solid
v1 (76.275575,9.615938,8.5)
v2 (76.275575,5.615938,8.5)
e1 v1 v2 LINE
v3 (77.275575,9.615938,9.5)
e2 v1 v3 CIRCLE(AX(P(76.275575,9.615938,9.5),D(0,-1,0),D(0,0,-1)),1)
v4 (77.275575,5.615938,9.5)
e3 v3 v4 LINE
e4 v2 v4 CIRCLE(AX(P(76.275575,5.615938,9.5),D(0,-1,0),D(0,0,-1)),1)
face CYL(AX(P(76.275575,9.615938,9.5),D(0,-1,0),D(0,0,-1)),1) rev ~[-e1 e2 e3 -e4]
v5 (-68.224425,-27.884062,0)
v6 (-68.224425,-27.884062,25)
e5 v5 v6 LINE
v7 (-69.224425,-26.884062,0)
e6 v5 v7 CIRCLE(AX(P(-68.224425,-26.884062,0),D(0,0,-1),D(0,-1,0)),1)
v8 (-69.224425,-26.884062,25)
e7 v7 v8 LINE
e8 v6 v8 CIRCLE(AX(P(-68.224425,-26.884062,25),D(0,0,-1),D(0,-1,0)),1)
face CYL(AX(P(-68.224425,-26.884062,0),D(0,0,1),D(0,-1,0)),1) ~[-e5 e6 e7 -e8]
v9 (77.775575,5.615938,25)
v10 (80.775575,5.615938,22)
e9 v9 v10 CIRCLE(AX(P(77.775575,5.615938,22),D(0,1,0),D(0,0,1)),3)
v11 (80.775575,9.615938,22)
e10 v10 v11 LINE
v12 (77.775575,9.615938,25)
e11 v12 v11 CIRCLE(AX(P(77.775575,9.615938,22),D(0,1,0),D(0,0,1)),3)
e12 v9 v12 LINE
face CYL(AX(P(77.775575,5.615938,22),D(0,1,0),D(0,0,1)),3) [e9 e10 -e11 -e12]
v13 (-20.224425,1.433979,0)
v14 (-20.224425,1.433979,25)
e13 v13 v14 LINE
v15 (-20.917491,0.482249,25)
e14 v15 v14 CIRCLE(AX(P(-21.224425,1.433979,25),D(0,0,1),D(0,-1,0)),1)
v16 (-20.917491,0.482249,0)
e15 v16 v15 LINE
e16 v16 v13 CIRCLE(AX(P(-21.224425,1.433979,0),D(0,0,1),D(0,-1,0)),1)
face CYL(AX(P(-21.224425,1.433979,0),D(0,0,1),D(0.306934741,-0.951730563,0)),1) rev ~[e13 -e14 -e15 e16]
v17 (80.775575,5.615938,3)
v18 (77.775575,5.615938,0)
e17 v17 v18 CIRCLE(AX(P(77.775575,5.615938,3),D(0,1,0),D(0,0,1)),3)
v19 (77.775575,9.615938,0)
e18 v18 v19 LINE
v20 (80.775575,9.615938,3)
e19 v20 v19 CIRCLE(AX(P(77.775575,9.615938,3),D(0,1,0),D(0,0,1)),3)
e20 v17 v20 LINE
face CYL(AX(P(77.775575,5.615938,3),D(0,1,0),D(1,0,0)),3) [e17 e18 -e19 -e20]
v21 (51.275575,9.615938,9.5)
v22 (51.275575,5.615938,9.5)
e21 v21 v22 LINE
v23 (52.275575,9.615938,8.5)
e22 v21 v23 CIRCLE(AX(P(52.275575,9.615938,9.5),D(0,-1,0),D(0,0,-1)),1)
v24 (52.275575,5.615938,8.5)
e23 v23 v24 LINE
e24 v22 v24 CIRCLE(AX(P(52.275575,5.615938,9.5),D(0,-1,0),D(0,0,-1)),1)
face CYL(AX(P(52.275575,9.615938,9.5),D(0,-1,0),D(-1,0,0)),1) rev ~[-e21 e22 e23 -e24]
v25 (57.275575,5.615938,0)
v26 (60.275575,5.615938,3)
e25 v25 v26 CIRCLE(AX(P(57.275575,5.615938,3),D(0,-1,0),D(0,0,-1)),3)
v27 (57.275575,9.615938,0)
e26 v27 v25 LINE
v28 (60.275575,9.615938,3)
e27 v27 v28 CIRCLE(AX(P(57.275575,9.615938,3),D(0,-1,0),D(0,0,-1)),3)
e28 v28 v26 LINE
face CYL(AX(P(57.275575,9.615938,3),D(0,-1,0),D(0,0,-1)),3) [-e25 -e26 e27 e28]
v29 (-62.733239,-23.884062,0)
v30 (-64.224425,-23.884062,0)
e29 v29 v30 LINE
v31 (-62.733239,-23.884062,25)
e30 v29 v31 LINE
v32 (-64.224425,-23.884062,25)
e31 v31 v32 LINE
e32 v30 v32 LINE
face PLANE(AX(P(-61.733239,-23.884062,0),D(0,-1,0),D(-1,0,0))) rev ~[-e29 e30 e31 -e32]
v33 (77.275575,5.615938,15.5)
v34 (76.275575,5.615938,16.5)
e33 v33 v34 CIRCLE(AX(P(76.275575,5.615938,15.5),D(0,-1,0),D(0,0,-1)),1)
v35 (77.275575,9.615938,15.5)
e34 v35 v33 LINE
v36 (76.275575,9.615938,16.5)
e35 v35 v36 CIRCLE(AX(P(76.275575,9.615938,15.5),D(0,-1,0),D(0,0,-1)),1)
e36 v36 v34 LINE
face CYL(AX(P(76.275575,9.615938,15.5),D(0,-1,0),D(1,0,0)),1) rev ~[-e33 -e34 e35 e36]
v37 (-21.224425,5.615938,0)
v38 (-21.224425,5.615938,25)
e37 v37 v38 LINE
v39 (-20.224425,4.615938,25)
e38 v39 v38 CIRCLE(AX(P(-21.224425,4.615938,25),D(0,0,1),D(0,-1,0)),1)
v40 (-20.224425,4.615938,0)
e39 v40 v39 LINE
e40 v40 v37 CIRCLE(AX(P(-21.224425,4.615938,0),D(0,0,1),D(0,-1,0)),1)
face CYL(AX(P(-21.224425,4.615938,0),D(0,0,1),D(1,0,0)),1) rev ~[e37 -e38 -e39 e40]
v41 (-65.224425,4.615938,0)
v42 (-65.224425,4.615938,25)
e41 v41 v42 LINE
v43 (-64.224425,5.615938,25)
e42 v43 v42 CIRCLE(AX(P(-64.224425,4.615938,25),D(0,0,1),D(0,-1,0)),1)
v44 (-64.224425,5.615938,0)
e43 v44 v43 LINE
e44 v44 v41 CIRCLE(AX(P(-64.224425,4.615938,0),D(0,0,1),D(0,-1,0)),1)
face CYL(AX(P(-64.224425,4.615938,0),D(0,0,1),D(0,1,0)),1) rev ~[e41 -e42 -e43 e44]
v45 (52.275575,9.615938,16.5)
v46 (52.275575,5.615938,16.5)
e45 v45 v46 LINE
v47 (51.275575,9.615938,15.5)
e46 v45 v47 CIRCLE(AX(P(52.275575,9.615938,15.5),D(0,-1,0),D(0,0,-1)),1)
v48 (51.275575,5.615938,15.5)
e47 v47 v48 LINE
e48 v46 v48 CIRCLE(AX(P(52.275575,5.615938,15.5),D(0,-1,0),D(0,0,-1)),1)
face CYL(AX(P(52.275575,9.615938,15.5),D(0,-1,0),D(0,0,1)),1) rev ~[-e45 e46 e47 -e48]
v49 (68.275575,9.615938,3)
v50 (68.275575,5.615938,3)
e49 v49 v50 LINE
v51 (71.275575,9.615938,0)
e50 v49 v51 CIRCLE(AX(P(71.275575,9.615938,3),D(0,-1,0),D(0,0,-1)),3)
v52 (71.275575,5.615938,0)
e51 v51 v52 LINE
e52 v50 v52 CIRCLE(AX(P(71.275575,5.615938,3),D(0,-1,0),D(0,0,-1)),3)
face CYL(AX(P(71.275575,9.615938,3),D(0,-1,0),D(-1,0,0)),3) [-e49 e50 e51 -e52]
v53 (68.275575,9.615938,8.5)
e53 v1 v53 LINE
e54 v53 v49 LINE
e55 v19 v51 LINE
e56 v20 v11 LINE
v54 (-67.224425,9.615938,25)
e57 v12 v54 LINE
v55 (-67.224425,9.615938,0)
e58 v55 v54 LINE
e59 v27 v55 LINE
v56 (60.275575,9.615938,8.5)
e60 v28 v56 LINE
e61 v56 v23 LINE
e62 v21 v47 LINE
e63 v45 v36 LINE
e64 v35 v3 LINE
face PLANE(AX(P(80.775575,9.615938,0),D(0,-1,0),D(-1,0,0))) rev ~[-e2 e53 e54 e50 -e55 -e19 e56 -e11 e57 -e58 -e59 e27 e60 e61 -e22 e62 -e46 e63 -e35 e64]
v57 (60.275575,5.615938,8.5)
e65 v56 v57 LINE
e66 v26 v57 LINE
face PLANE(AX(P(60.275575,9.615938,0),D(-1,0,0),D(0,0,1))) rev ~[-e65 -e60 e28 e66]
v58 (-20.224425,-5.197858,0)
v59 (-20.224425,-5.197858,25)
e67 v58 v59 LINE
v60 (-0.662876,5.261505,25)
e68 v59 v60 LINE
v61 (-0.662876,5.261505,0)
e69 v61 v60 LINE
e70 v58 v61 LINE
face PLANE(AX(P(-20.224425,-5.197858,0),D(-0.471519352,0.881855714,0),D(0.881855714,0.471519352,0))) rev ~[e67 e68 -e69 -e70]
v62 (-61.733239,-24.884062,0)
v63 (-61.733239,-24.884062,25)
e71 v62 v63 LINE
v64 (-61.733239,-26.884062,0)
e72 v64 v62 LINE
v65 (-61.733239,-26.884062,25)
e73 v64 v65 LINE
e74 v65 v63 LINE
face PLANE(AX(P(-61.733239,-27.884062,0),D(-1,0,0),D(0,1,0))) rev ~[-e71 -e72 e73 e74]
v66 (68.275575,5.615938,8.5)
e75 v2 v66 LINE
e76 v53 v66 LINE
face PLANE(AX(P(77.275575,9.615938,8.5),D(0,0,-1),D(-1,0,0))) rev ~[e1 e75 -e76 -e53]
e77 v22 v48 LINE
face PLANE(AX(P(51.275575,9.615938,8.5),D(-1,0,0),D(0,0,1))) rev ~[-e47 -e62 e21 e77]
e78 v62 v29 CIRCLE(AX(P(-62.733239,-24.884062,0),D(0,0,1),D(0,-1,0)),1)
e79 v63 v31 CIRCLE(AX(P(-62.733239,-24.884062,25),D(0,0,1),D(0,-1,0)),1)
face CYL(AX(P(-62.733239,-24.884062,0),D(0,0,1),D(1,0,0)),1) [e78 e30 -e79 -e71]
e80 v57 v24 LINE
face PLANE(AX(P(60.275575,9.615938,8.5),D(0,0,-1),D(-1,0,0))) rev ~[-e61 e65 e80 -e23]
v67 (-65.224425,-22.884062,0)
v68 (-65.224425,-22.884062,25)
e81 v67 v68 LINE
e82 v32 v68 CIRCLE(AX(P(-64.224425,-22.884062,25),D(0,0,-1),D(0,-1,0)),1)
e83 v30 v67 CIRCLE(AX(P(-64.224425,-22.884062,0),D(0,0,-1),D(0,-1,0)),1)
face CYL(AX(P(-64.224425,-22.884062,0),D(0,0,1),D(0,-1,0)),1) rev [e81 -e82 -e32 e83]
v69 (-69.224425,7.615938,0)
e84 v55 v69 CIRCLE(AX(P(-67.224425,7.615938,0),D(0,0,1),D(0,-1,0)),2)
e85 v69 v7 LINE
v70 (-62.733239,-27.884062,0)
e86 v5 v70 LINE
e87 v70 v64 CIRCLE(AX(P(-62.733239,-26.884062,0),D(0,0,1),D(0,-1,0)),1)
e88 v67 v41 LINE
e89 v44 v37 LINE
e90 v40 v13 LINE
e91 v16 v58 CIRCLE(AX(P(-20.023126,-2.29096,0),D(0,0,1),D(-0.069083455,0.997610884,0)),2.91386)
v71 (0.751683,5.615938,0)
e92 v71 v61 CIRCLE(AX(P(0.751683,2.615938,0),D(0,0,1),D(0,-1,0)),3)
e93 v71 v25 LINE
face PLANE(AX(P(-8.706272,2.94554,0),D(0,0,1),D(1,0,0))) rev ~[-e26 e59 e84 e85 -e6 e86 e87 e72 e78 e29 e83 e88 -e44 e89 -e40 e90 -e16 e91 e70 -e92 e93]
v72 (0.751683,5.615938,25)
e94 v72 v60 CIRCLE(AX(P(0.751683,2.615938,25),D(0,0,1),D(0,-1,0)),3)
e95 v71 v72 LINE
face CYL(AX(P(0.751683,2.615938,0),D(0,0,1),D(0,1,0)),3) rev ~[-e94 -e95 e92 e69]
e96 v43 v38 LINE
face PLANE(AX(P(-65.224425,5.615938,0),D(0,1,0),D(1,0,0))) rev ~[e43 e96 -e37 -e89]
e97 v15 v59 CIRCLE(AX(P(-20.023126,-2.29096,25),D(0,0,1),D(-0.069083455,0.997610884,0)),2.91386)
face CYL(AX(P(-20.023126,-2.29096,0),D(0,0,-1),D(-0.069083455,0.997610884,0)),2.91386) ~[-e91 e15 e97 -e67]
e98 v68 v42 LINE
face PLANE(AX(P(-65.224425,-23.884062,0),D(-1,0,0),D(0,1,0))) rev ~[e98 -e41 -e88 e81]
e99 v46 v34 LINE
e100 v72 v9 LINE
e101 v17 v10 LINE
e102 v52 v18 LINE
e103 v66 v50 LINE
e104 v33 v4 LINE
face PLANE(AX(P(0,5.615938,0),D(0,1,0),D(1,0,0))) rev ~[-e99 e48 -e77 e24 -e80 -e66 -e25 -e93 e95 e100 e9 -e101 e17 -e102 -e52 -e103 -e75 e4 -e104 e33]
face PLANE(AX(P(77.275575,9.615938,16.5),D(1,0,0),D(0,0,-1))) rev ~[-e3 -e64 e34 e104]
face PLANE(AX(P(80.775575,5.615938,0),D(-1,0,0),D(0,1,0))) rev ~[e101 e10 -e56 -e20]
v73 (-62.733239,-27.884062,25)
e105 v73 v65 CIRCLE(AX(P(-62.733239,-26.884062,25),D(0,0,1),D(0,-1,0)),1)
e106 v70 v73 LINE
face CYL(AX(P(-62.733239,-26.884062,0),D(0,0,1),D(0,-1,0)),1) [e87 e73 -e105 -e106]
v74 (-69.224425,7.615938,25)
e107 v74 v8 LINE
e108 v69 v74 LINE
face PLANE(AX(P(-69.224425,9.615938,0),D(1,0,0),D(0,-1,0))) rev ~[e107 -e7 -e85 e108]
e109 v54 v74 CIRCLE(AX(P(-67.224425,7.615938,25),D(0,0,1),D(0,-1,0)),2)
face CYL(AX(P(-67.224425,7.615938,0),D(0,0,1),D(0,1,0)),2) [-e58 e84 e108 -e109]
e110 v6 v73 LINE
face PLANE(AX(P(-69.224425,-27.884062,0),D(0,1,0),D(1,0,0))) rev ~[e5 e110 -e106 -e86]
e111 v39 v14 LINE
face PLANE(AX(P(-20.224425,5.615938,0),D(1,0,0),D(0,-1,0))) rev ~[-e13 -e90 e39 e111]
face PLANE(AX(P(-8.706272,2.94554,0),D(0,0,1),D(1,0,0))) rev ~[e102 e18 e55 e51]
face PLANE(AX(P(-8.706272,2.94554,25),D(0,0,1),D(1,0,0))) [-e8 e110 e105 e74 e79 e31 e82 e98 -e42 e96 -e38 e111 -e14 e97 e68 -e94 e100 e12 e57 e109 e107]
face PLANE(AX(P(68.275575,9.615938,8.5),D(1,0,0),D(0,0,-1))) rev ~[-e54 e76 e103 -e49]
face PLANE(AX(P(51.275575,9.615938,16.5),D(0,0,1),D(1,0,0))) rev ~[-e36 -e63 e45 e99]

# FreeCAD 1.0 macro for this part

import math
import FreeCAD as App
import Part
import Sketcher
from FreeCAD import Vector
Q = App.Units.Quantity


def edges_at(feature, points):
    """Names of the edges that pass closest to the given points."""
    edges = feature.Shape.Edges
    near = lambda p: min(range(len(edges)), key=lambda i: edges[i].distToShape(Part.Vertex(*p))[0])
    return sorted({f"Edge{near(p) + 1}" for p in points})


def add_polygon(sketch, points):
    """Adds a closed chain of lines whose ends are joined by coincident constraints."""
    first, n = sketch.GeometryCount, len(points)
    for a, b in zip(points, points[1:] + points[:1]):
        sketch.addGeometry(Part.LineSegment(App.Vector(*a, 0), App.Vector(*b, 0)), False)
    for i in range(n):
        sketch.addConstraint(Sketcher.Constraint("Coincident", first + i, 2, first + (i + 1) % n, 1))

doc = App.newDocument("Part")
body = doc.addObject("PartDesign::Body", "Body")

# Sketch on XY plane
sketch1 = body.newObject("Sketcher::SketchObject", "Sketch")
sketch1.AttachmentSupport = (doc.getObject("XY_Plane"), [""])
sketch1.MapMode = "FlatFace"
sketch1.addGeometry([
    Part.LineSegment(Vector(-69.2, -27.9, 0), Vector(-61.7, -27.9, 0)),  # 0
    Part.LineSegment(Vector(-61.7, -27.9, 0), Vector(-61.7, -23.9, 0)),  # 1
    Part.LineSegment(Vector(-61.7, -23.9, 0), Vector(-65.2, -23.9, 0)),  # 2
    Part.LineSegment(Vector(-65.2, -23.9, 0), Vector(-65.2, 5.6, 0)),  # 3
    Part.LineSegment(Vector(-65.2, 5.6, 0), Vector(-20.2, 5.6, 0)),  # 4
    Part.LineSegment(Vector(-20.2, 5.6, 0), Vector(-20.2, 0.6, 0)),  # 5
    Part.ArcOfCircle(Part.Circle(Vector(-20, -2.3, 0), Vector(0, 0, 1), 2.9), math.radians(94), math.radians(266)),  # 6
    Part.LineSegment(Vector(-20.2, -5.2, 0), Vector(0, 5.6, 0)),  # 7
    Part.LineSegment(Vector(0, 5.6, 0), Vector(80.8, 5.6, 0)),  # 8
    Part.LineSegment(Vector(80.8, 5.6, 0), Vector(80.8, 9.6, 0)),  # 9
    Part.LineSegment(Vector(80.8, 9.6, 0), Vector(-69.2, 9.6, 0)),  # 10
    Part.LineSegment(Vector(-69.2, 9.6, 0), Vector(-69.2, -27.9, 0)),  # 11
], False)
sketch1.addConstraint([
    Sketcher.Constraint("Coincident", 0, 2, 1, 1),
    Sketcher.Constraint("Coincident", 1, 2, 2, 1),
    Sketcher.Constraint("Coincident", 2, 2, 3, 1),
    Sketcher.Constraint("Coincident", 3, 2, 4, 1),
    Sketcher.Constraint("Coincident", 4, 2, 5, 1),
    Sketcher.Constraint("Coincident", 5, 2, 6, 1),
    Sketcher.Constraint("Coincident", 6, 2, 7, 1),
    Sketcher.Constraint("Coincident", 7, 2, 8, 1),
    Sketcher.Constraint("Coincident", 8, 2, 9, 1),
    Sketcher.Constraint("Coincident", 9, 2, 10, 1),
    Sketcher.Constraint("Coincident", 10, 2, 11, 1),
    Sketcher.Constraint("Coincident", 11, 2, 0, 1),
    Sketcher.Constraint("Horizontal", 0),
    Sketcher.Constraint("Vertical", 1),
    Sketcher.Constraint("Horizontal", 2),
    Sketcher.Constraint("Vertical", 3),
    Sketcher.Constraint("Horizontal", 4),
    Sketcher.Constraint("Vertical", 5),
    Sketcher.Constraint("Horizontal", 8),
    Sketcher.Constraint("Vertical", 9),
    Sketcher.Constraint("Horizontal", 10),
    Sketcher.Constraint("Vertical", 11),
    Sketcher.Constraint("PointOnObject", 7, 2, -2),
    Sketcher.Constraint("Horizontal", 4, 2, 7, 2),
    Sketcher.Constraint("Vertical", 5, 2, 6, 2),
    Sketcher.Constraint("Equal", 1, 9),
    Sketcher.Constraint("DistanceX", 4, 1, 4, 2, Q("45 mm")),
    Sketcher.Constraint("DistanceX", 10, 2, 10, 1, Q("150 mm")),
    Sketcher.Constraint("DistanceY", 1, 1, 1, 2, Q("4 mm")),
    Sketcher.Constraint("DistanceY", 5, 2, 5, 1, Q("5 mm")),
    Sketcher.Constraint("DistanceY", 3, 1, 3, 2, Q("29.5 mm")),
    Sketcher.Constraint("DistanceX", 4, 2, 8, 2, Q("101 mm")),
    Sketcher.Constraint("Radius", 6, Q("2.91386 mm")),
    Sketcher.Constraint("DistanceY", 0, 2, 6, 3, Q("25.593102 mm")),
    Sketcher.Constraint("Distance", 7, Q("22.933939 mm")),
    Sketcher.Constraint("DistanceX", 0, 1, 0, 2, Q("7.491186 mm")),
    Sketcher.Constraint("DistanceY", 6, 3, -1, 1, Q("2.29096 mm")),
])
pad1 = body.newObject("PartDesign::Pad", "Pad")
pad1.Profile = sketch1
pad1.Length = 25

# Sketch on XZ plane
sketch2 = body.newObject("Sketcher::SketchObject", "Sketch001")
sketch2.AttachmentSupport = (doc.getObject("XZ_Plane"), [""])
sketch2.MapMode = "FlatFace"
sketch2.AttachmentOffset = App.Placement(Vector(0, 0, -9.615938), App.Rotation())
add_polygon(sketch2, [(68, 8), (68, 0), (60, 0), (60, 8), (51, 8), (51, 16), (77, 16), (77, 8)])  # lines 0-7
sketch2.addConstraint([
    Sketcher.Constraint("Vertical", 0),
    Sketcher.Constraint("Horizontal", 1),
    Sketcher.Constraint("Vertical", 2),
    Sketcher.Constraint("Horizontal", 3),
    Sketcher.Constraint("Vertical", 4),
    Sketcher.Constraint("Horizontal", 5),
    Sketcher.Constraint("Vertical", 6),
    Sketcher.Constraint("Horizontal", 7),
    Sketcher.Constraint("PointOnObject", 0, 2, -1),
    Sketcher.Constraint("Horizontal", 3, 2, 6, 2),
    Sketcher.Constraint("Equal", 3, 7),
    Sketcher.Constraint("Equal", 1, 4),
    Sketcher.Constraint("DistanceX", 1, 2, 1, 1, Q("8 mm")),
    Sketcher.Constraint("DistanceX", 3, 2, 3, 1, Q("9 mm")),
    Sketcher.Constraint("DistanceY", 0, 2, 0, 1, Q("8.5 mm")),
    Sketcher.Constraint("DistanceX", -1, 1, 0, 2, Q("68.275575 mm")),
])
pocket1 = body.newObject("PartDesign::Pocket", "Pocket")
pocket1.Profile = sketch2
pocket1.Type = "ThroughAll"
pocket1.Reversed = True
doc.recompute()

fillet = body.newObject("PartDesign::Fillet", "Fillet")
fillet.Base = (pocket1, edges_at(pocket1, [
    (77.276, 7.616, 16.5),
    (77.276, 7.616, 8.5),
    (51.276, 7.616, 16.5),
    (51.276, 7.616, 8.5),
    (-65.224, 5.616, 12.5),
    (-20.224, 5.616, 12.5),
    (-20.224, 0.616, 12.5),
    (-65.224, -23.884, 12.5),
    (-61.733, -23.884, 12.5),
    (-61.733, -27.884, 12.5),
    (-69.224, -27.884, 12.5),
]))
fillet.Radius = 1
doc.recompute()

fillet2 = body.newObject("PartDesign::Fillet", "Fillet001")
fillet2.Base = (fillet, edges_at(fillet, [
    (80.776, 7.616, 0),
    (80.776, 7.616, 25),
    (68.276, 7.616, 0),
    (60.276, 7.616, 0),
    (0, 5.616, 12.5),
]))
fillet2.Radius = 3
doc.recompute()

fillet3 = body.newObject("PartDesign::Fillet", "Fillet002")
fillet3.Base = (fillet2, edges_at(fillet2, [(-69.224, 9.616, 12.5)]))
fillet3.Radius = 2

doc.recompute()
